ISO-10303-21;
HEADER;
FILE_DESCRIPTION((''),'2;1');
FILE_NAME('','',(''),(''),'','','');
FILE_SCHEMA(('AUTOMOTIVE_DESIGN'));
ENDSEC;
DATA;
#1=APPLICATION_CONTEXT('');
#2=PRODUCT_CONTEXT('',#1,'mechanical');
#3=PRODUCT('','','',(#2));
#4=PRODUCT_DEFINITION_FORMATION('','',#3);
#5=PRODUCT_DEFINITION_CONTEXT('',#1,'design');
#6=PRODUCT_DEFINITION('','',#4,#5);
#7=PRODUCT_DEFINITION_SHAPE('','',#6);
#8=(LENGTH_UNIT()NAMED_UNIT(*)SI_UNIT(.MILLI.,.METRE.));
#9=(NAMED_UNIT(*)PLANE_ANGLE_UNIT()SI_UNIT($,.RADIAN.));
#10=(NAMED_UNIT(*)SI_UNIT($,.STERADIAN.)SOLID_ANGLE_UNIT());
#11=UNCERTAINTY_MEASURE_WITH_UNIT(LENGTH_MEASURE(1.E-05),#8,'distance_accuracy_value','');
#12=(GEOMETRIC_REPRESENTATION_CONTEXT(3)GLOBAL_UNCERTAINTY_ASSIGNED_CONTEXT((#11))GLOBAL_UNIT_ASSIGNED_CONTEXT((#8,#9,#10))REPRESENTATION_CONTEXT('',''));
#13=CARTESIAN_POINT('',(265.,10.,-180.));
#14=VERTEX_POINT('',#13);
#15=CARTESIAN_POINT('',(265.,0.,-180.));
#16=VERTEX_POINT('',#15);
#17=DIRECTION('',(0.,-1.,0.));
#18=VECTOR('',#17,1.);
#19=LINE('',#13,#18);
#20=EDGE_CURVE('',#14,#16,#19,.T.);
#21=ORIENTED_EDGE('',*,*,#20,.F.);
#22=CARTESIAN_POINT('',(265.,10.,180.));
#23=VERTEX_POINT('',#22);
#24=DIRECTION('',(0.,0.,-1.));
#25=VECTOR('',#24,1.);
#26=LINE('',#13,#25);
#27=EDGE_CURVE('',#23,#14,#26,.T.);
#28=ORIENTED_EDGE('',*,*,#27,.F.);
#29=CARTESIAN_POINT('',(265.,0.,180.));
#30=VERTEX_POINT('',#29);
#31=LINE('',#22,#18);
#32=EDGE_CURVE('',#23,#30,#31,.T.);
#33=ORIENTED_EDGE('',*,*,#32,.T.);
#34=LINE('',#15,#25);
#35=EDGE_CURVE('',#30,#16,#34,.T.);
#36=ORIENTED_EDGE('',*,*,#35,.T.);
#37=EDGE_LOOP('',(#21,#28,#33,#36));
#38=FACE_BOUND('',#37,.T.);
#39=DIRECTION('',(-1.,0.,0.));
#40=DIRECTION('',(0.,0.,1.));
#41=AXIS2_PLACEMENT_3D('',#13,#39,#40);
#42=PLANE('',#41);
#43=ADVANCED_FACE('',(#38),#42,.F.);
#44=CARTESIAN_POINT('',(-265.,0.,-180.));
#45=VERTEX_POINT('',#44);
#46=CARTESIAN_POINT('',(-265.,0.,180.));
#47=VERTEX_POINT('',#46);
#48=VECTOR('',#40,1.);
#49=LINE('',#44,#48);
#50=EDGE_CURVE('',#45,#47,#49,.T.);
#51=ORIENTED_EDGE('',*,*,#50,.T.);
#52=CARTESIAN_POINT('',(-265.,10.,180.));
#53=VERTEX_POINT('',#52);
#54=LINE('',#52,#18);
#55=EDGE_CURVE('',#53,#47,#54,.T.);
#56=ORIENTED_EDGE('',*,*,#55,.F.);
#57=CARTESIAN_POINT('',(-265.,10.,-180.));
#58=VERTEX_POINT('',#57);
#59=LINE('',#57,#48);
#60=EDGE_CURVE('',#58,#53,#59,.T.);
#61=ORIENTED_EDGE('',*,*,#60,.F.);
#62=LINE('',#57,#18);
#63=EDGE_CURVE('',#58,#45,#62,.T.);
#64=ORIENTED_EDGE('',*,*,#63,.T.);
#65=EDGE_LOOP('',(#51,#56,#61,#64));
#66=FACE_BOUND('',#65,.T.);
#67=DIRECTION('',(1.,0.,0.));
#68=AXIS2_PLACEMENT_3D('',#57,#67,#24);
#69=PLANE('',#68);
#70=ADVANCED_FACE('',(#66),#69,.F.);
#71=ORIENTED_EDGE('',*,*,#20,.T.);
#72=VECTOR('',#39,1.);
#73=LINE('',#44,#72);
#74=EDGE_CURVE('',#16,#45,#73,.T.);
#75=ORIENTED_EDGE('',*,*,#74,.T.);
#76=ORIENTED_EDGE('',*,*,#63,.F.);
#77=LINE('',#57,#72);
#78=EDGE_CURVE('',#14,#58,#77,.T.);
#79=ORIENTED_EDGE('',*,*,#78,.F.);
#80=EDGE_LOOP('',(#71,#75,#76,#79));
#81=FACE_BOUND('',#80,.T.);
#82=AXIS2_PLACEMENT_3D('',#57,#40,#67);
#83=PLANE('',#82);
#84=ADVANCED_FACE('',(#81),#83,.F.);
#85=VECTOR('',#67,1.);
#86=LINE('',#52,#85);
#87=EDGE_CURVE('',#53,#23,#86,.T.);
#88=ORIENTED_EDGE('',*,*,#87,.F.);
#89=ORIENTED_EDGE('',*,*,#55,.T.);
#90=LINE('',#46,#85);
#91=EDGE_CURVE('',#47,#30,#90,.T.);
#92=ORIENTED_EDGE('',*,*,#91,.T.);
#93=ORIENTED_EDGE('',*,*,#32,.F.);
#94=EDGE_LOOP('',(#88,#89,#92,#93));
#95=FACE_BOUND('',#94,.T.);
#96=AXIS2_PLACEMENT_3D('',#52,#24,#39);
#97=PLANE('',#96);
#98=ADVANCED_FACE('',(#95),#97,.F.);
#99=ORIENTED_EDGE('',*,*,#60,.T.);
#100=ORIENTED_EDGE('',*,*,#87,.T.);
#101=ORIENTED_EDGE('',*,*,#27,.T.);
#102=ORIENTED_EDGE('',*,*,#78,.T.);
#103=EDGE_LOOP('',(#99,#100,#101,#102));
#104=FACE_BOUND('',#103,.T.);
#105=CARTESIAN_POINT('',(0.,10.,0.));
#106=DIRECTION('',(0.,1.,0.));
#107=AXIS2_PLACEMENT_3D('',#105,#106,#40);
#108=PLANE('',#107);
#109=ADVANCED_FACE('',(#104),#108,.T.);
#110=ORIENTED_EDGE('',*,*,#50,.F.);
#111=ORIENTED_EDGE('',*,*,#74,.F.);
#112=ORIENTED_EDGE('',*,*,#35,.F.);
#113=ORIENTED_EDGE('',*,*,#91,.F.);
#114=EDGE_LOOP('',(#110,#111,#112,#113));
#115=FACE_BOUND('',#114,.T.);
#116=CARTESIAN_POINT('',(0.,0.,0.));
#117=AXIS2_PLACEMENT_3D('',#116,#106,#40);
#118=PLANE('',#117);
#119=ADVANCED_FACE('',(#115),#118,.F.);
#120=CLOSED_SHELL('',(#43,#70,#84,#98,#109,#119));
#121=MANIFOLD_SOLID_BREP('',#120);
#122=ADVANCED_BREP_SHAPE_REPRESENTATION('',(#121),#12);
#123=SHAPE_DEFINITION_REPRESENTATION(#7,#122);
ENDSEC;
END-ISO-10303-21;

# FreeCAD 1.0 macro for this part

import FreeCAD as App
import Part
import Sketcher
from FreeCAD import Vector

doc = App.newDocument("Part")
body = doc.addObject("PartDesign::Body", "Body")

# Sketch on XZ plane
sketch1 = doc.addObject("Sketcher::SketchObject", "Sketch")
body.addObject(sketch1)
sketch1.AttachmentSupport = (doc.XZ_Plane, [""])
sketch1.MapMode = "FlatFace"
sketch1.addGeometry(Part.LineSegment(Vector(-265, -180, 0), Vector(-265, 180, 0)), False)
sketch1.addGeometry(Part.LineSegment(Vector(-265, 180, 0), Vector(265, 180, 0)), False)
sketch1.addGeometry(Part.LineSegment(Vector(265, 180, 0), Vector(265, -180, 0)), False)
sketch1.addGeometry(Part.LineSegment(Vector(265, -180, 0), Vector(-265, -180, 0)), False)
sketch1.addConstraint(Sketcher.Constraint("Coincident", 0, 2, 1, 1))
sketch1.addConstraint(Sketcher.Constraint("Coincident", 1, 2, 2, 1))
sketch1.addConstraint(Sketcher.Constraint("Coincident", 2, 2, 3, 1))
sketch1.addConstraint(Sketcher.Constraint("Coincident", 3, 2, 0, 1))
sketch1.addConstraint(Sketcher.Constraint("Vertical", 0))
sketch1.addConstraint(Sketcher.Constraint("Horizontal", 1))
sketch1.addConstraint(Sketcher.Constraint("Vertical", 2))
sketch1.addConstraint(Sketcher.Constraint("Horizontal", 3))
sketch1.addConstraint(Sketcher.Constraint("Symmetric", 0, 2, 2, 2, -1, 1))
sketch1.addConstraint(Sketcher.Constraint("DistanceX", 1, 1, 1, 2, 530.0))
sketch1.addConstraint(Sketcher.Constraint("DistanceY", 0, 1, 0, 2, 360.0))
pad1 = doc.addObject("PartDesign::Pad", "Pad")
body.addObject(pad1)
pad1.Profile = sketch1
pad1.Length = 10
pad1.Reversed = True

doc.recompute()
